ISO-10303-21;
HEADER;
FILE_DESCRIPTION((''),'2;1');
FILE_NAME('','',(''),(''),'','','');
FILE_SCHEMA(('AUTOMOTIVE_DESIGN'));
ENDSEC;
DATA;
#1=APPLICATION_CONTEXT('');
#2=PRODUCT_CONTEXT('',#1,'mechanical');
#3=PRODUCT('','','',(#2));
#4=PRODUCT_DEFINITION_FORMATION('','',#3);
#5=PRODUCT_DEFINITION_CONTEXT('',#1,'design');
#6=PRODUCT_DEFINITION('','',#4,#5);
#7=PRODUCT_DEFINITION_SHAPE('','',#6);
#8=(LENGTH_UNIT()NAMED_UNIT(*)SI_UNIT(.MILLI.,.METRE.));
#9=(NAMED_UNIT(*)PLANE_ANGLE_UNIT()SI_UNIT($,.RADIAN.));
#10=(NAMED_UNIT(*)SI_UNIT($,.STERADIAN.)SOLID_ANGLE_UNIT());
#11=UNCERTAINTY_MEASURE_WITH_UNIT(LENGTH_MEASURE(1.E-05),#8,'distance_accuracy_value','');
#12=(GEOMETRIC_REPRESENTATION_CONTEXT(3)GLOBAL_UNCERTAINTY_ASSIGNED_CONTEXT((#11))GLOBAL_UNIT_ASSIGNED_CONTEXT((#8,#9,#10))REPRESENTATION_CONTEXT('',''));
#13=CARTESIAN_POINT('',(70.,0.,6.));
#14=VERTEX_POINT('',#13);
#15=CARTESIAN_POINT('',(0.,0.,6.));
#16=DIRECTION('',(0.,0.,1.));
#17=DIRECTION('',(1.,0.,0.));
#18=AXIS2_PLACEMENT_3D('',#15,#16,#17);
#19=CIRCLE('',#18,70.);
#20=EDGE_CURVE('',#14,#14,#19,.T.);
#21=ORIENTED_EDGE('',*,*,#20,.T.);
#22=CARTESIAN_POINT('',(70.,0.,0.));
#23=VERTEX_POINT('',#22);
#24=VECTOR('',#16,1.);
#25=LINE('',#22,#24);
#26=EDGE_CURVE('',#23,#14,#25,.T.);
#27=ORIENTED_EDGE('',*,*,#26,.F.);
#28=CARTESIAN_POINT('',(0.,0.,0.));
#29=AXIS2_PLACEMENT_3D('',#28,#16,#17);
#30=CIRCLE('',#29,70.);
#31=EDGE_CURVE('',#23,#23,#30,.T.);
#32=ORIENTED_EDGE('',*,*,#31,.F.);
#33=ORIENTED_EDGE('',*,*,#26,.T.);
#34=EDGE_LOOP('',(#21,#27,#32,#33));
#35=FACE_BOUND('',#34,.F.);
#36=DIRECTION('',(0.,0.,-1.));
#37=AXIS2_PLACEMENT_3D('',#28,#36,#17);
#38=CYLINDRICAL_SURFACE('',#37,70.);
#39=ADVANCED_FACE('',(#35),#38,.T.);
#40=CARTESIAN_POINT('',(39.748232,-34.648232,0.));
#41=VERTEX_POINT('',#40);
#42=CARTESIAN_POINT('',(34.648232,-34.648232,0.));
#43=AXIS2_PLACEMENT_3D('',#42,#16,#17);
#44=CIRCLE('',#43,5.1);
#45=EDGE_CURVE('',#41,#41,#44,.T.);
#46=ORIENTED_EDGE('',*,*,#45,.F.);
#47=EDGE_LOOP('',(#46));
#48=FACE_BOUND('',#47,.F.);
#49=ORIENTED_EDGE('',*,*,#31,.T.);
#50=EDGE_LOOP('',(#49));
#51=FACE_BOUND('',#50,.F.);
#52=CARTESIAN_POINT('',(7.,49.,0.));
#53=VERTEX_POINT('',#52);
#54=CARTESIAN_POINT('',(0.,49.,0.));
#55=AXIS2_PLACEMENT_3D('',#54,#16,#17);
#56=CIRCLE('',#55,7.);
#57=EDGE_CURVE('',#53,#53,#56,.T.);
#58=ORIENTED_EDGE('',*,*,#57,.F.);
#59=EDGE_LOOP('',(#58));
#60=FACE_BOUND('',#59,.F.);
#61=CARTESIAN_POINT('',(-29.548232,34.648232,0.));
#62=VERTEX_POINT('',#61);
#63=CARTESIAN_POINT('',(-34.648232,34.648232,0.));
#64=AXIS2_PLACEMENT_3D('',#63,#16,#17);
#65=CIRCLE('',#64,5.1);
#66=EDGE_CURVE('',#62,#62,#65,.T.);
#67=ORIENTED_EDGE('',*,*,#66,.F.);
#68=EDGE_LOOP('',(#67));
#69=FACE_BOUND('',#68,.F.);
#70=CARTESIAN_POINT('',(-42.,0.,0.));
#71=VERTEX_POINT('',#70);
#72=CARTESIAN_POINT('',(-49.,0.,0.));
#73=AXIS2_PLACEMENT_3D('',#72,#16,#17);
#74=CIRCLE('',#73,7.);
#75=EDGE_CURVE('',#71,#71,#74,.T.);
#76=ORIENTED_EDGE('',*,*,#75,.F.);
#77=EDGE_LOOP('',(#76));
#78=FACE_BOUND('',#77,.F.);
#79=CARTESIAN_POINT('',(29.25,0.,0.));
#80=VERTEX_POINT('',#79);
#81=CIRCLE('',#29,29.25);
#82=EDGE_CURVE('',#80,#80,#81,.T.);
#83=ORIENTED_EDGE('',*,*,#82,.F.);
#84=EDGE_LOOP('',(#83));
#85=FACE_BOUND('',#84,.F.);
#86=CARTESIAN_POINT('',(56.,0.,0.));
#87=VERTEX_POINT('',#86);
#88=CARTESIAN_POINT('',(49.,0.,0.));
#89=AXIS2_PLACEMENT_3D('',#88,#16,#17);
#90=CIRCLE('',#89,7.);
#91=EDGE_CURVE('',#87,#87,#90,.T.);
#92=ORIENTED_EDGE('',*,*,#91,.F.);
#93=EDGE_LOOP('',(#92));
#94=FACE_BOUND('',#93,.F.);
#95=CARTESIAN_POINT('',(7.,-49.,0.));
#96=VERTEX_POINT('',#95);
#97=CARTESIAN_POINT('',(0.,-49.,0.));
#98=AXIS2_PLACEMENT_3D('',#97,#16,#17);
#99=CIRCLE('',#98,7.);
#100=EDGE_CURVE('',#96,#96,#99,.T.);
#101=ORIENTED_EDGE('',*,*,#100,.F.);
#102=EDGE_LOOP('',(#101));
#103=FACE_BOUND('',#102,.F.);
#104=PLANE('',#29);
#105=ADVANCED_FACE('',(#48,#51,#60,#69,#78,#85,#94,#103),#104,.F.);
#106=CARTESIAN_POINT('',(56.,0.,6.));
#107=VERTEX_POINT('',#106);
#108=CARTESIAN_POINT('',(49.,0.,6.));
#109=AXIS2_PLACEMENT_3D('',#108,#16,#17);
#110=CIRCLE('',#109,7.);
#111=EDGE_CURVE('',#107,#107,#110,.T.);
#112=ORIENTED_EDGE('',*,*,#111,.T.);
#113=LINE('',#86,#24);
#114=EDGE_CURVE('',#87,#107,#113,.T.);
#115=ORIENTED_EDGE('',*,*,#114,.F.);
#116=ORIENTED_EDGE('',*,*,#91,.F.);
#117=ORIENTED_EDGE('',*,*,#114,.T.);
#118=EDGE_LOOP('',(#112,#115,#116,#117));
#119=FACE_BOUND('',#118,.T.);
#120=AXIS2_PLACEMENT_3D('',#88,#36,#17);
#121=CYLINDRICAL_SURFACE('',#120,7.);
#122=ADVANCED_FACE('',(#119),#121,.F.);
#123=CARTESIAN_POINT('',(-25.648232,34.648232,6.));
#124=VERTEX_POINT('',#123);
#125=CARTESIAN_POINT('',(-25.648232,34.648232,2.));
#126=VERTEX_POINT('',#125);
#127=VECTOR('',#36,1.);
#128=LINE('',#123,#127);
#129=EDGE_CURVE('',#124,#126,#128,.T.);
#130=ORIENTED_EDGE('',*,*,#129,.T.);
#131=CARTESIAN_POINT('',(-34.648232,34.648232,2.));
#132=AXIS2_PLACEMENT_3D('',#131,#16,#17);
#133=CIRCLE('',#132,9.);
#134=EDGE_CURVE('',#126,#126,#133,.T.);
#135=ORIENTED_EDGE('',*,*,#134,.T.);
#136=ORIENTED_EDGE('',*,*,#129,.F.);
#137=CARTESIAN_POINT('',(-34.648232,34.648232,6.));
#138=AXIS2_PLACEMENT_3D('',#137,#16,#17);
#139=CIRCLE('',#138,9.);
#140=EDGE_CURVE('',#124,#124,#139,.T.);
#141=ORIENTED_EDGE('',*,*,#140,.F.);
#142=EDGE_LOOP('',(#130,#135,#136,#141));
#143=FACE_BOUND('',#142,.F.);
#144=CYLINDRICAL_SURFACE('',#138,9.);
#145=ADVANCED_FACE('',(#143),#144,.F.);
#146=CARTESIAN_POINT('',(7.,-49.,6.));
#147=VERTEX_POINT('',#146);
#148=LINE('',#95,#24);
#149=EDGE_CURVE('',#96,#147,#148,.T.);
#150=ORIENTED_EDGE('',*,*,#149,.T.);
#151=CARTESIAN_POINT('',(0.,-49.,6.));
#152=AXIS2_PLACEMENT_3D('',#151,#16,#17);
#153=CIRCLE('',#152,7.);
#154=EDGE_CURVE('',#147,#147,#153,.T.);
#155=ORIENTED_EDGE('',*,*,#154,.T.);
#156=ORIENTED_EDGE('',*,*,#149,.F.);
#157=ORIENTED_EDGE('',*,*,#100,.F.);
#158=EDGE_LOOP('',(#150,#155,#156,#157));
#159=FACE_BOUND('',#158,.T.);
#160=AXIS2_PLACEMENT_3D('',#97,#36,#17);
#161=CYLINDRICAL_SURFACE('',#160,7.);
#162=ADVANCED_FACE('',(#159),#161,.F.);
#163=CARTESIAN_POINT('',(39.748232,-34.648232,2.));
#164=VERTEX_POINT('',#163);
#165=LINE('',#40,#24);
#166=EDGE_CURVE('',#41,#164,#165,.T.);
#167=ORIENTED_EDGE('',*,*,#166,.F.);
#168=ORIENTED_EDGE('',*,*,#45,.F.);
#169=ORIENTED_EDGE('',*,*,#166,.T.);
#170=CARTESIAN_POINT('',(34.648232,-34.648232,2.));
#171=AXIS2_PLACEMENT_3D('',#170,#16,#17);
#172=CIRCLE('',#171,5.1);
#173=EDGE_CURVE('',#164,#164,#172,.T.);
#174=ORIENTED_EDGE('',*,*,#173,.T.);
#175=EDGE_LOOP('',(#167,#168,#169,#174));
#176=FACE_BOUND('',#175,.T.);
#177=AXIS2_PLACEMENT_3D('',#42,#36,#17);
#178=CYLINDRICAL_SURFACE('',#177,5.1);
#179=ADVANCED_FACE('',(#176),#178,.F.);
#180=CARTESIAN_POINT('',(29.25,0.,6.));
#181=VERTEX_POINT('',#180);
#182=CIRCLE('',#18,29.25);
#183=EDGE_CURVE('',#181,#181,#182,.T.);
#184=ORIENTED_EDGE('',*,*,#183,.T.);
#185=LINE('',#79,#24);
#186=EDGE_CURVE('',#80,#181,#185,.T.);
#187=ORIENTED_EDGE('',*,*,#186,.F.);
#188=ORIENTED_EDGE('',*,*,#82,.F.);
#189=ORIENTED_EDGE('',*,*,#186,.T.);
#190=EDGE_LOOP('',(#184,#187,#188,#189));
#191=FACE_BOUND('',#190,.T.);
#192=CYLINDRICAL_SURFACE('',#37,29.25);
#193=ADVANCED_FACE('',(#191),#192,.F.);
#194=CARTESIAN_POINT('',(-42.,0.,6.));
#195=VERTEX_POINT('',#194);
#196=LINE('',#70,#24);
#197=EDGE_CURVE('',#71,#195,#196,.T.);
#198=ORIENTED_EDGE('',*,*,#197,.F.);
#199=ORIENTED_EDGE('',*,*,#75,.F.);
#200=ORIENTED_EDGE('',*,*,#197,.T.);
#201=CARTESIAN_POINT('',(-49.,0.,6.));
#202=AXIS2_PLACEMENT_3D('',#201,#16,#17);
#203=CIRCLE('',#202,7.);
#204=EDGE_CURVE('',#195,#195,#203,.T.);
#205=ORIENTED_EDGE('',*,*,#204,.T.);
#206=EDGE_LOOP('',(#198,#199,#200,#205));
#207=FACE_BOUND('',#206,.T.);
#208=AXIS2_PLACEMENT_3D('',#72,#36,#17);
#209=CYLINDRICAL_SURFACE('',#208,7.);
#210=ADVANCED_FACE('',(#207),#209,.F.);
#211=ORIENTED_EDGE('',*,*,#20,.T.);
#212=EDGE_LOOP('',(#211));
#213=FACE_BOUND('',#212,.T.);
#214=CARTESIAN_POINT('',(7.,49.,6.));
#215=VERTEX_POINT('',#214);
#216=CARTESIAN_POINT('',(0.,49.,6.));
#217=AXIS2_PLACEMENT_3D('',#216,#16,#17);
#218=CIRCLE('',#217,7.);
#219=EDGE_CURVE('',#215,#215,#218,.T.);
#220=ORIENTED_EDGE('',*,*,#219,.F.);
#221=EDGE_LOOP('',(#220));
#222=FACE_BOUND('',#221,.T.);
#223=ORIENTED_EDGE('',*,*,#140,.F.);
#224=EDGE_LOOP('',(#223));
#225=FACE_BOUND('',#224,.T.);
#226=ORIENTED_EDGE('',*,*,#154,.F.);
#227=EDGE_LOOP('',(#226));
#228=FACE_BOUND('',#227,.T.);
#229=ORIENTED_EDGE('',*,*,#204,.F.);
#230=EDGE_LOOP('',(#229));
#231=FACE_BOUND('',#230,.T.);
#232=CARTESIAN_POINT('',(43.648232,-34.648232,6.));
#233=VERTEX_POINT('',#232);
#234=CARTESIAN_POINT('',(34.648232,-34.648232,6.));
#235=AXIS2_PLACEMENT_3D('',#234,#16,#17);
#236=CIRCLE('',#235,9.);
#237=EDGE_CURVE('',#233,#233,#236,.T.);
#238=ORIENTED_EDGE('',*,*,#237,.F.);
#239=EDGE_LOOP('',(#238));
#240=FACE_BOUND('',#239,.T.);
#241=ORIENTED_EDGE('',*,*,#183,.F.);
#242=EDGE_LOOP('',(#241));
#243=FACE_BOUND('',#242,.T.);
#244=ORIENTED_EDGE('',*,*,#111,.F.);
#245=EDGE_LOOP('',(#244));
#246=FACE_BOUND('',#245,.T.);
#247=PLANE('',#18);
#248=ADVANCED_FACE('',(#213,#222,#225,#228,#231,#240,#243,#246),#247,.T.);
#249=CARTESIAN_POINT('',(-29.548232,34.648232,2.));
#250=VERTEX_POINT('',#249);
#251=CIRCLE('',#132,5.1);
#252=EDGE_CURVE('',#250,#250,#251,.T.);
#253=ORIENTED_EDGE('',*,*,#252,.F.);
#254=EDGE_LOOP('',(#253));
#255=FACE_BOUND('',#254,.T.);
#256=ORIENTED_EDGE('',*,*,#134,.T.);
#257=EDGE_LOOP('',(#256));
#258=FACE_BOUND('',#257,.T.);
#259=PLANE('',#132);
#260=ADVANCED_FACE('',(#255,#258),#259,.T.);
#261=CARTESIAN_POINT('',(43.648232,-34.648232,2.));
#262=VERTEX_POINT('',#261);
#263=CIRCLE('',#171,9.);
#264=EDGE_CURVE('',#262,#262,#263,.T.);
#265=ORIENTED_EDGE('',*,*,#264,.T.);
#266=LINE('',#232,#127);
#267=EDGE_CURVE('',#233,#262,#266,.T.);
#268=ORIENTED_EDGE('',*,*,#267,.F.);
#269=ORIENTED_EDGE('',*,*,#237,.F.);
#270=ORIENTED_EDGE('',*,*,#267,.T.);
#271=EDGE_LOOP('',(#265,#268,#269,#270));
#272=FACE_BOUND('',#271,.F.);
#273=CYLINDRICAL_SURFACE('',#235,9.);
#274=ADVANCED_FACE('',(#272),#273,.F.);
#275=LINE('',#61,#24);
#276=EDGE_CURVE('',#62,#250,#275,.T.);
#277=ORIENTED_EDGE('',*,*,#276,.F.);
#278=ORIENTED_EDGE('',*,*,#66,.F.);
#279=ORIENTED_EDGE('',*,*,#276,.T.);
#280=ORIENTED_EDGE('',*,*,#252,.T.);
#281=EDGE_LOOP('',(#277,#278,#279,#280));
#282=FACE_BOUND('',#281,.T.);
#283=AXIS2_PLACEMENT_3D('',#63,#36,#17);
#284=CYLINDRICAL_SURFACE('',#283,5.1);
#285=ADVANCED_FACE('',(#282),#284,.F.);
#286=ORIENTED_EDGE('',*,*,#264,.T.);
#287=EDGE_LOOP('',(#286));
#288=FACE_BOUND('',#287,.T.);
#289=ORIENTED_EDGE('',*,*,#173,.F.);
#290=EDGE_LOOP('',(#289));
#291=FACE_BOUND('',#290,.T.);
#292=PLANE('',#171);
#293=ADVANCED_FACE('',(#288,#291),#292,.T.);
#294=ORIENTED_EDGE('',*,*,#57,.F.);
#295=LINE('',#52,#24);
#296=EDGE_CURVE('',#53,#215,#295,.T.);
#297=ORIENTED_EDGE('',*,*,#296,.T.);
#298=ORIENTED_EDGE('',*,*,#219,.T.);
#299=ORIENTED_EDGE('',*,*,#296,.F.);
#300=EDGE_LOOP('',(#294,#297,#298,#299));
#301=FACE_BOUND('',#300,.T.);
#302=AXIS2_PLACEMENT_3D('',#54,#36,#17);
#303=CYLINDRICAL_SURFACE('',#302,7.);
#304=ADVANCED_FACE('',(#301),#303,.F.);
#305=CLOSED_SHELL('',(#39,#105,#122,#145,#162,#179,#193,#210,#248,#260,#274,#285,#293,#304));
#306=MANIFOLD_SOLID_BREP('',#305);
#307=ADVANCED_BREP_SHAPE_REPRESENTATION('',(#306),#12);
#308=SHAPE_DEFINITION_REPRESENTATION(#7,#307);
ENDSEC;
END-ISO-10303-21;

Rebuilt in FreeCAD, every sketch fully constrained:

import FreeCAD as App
import Part
import Sketcher
from FreeCAD import Vector
Q = App.Units.Quantity

doc = App.newDocument("Part")
body = doc.addObject("PartDesign::Body", "Body")

# Sketch on XY plane
sketch1 = body.newObject("Sketcher::SketchObject", "Sketch")
sketch1.AttachmentSupport = (doc.getObject("XY_Plane"), [""])
sketch1.MapMode = "FlatFace"
sketch1.addGeometry(Part.Circle(Vector(0, 0, 0), Vector(0, 0, 1), 70), False)
sketch1.addGeometry(Part.Circle(Vector(0, -49, 0), Vector(0, 0, 1), 7), False)
sketch1.addGeometry(Part.Circle(Vector(35, -35, 0), Vector(0, 0, 1), 5), False)
sketch1.addGeometry(Part.Circle(Vector(-49, 0, 0), Vector(0, 0, 1), 7), False)
sketch1.addGeometry(Part.Circle(Vector(-35, 35, 0), Vector(0, 0, 1), 5), False)
sketch1.addGeometry(Part.Circle(Vector(0, 0, 0), Vector(0, 0, 1), 29), False)
sketch1.addGeometry(Part.Circle(Vector(49, 0, 0), Vector(0, 0, 1), 7), False)
sketch1.addGeometry(Part.Circle(Vector(0, 49, 0), Vector(0, 0, 1), 7), False)
sketch1.addConstraint(Sketcher.Constraint("Coincident", 0, 3, -1, 1))
sketch1.addConstraint(Sketcher.Constraint("Coincident", 5, 3, -1, 1))
sketch1.addConstraint(Sketcher.Constraint("Equal", 1, 3))
sketch1.addConstraint(Sketcher.Constraint("Equal", 2, 4))
sketch1.addConstraint(Sketcher.Constraint("Equal", 3, 6))
sketch1.addConstraint(Sketcher.Constraint("Equal", 6, 7))
sketch1.addConstraint(Sketcher.Constraint("Symmetric", 2, 3, 4, 3, -1, 1))
sketch1.addConstraint(Sketcher.Constraint("Symmetric", 3, 3, 6, 3, -1, 1))
sketch1.addConstraint(Sketcher.Constraint("Symmetric", 1, 3, 7, 3, -1, 1))
sketch1.addConstraint(Sketcher.Constraint("PointOnObject", 1, 3, -2))
sketch1.addConstraint(Sketcher.Constraint("PointOnObject", 3, 3, -1))
sketch1.addConstraint(Sketcher.Constraint("Diameter", 0, Q("140 mm")))
sketch1.addConstraint(Sketcher.Constraint("Diameter", 1, Q("14 mm")))
sketch1.addConstraint(Sketcher.Constraint("Diameter", 2, Q("10.2 mm")))
sketch1.addConstraint(Sketcher.Constraint("Diameter", 5, Q("58.5 mm")))
sketch1.addConstraint(Sketcher.Constraint("DistanceY", 1, 3, -1, 1, Q("49 mm")))
sketch1.addConstraint(Sketcher.Constraint("DistanceX", 3, 3, -1, 1, Q("49 mm")))
sketch1.addConstraint(Sketcher.Constraint("DistanceX", -1, 1, 2, 3, Q("34.648232 mm")))
sketch1.addConstraint(Sketcher.Constraint("DistanceY", 2, 3, -1, 1, Q("34.648232 mm")))
pad1 = body.newObject("PartDesign::Pad", "Pad")
pad1.Profile = sketch1
pad1.Length = 6

# Sketch on XY plane
sketch2 = body.newObject("Sketcher::SketchObject", "Sketch001")
sketch2.AttachmentSupport = (doc.getObject("XY_Plane"), [""])
sketch2.MapMode = "FlatFace"
sketch2.AttachmentOffset = App.Placement(Vector(0, 0, 6), App.Rotation())
sketch2.addGeometry(Part.Circle(Vector(-35, 35, 0), Vector(0, 0, 1), 9), False)
sketch2.addGeometry(Part.Circle(Vector(-35, 35, 0), Vector(0, 0, 1), 5), False)
sketch2.addGeometry(Part.Circle(Vector(35, -35, 0), Vector(0, 0, 1), 9), False)
sketch2.addGeometry(Part.Circle(Vector(35, -35, 0), Vector(0, 0, 1), 5), False)
sketch2.addConstraint(Sketcher.Constraint("Coincident", 1, 3, 0, 3))
sketch2.addConstraint(Sketcher.Constraint("Coincident", 3, 3, 2, 3))
sketch2.addConstraint(Sketcher.Constraint("Equal", 0, 2))
sketch2.addConstraint(Sketcher.Constraint("Equal", 1, 3))
sketch2.addConstraint(Sketcher.Constraint("Symmetric", 0, 3, 2, 3, -1, 1))
sketch2.addConstraint(Sketcher.Constraint("Diameter", 0, Q("18 mm")))
sketch2.addConstraint(Sketcher.Constraint("Diameter", 1, Q("10.2 mm")))
sketch2.addConstraint(Sketcher.Constraint("DistanceX", 0, 3, -1, 1, Q("34.648232 mm")))
sketch2.addConstraint(Sketcher.Constraint("DistanceY", -1, 1, 0, 3, Q("34.648232 mm")))
pocket1 = body.newObject("PartDesign::Pocket", "Pocket")
pocket1.Profile = sketch2
pocket1.Length = 4

doc.recompute()
